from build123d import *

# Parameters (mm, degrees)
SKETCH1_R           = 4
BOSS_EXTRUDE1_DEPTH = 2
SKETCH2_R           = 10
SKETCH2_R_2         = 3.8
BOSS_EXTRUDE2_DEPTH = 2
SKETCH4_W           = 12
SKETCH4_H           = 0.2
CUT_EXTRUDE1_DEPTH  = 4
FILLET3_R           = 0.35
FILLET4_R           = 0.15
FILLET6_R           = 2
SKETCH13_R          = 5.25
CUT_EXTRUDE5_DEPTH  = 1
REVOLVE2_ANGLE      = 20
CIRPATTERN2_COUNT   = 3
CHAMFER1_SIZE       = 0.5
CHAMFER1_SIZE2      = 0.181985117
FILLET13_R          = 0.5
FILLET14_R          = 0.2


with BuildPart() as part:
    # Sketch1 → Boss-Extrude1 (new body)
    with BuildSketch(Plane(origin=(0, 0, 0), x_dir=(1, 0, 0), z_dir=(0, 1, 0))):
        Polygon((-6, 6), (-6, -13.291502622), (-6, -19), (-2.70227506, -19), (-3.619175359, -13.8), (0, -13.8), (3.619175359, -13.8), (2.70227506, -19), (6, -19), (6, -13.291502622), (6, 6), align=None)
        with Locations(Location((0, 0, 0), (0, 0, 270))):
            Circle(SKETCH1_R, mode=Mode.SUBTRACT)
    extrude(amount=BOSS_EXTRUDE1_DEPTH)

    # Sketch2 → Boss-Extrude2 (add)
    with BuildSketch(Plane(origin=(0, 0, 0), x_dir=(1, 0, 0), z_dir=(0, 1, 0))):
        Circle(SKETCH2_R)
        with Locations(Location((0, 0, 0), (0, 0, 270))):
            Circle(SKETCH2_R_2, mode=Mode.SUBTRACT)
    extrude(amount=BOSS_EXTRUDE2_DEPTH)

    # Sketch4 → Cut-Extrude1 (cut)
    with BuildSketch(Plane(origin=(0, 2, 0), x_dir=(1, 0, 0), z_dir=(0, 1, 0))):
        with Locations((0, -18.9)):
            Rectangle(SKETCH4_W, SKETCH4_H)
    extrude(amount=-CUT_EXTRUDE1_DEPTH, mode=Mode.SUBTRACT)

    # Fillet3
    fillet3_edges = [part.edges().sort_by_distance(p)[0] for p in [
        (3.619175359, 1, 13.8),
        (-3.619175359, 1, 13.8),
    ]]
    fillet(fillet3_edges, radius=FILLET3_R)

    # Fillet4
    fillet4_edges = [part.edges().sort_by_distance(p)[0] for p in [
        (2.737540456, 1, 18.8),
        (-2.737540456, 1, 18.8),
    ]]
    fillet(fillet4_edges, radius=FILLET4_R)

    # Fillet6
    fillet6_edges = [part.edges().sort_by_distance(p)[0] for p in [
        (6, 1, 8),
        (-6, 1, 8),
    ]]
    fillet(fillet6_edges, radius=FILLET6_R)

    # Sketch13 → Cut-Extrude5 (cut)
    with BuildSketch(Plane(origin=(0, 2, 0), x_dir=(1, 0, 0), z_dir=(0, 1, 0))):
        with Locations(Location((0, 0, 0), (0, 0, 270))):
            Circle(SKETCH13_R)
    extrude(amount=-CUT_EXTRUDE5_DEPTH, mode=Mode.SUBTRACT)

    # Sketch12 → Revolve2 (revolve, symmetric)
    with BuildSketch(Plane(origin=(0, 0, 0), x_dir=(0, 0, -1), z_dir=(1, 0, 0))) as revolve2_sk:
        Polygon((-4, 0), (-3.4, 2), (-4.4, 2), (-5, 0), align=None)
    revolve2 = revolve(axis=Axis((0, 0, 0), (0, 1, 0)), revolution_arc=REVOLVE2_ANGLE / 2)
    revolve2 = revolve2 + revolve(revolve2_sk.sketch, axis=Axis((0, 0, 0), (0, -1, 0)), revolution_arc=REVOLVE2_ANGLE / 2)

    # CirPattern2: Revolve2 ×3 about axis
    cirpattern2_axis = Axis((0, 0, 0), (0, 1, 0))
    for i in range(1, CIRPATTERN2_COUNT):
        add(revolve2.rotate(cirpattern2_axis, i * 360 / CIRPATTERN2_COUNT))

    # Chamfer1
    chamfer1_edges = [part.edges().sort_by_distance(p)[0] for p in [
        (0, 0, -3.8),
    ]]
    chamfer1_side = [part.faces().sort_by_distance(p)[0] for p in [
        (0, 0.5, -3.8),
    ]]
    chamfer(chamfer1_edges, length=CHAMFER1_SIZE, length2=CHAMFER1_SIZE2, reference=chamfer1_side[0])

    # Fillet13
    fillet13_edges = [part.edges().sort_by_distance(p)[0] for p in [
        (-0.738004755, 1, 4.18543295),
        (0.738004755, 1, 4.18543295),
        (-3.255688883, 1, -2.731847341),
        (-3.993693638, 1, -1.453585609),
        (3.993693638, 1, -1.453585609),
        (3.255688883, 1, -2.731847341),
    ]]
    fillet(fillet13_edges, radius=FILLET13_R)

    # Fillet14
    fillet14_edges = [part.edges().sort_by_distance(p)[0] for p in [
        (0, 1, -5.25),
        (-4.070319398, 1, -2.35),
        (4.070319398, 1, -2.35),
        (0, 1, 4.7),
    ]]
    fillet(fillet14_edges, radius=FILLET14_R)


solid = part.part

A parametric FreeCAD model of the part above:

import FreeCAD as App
import Part
import Sketcher

V = App.Vector
Q = App.Units.Quantity


def edges_at(feature, points):
    """Names of the edges that pass closest to the given points."""
    edges = feature.Shape.Edges
    near = lambda p: min(range(len(edges)), key=lambda i: edges[i].distToShape(Part.Vertex(*p))[0])
    return sorted({f"Edge{near(p) + 1}" for p in points})


def add_polygon(sketch, points):
    """Adds a closed chain of lines whose ends are joined by coincident constraints."""
    first, n = sketch.GeometryCount, len(points)
    for a, b in zip(points, points[1:] + points[:1]):
        sketch.addGeometry(Part.LineSegment(App.Vector(*a, 0), App.Vector(*b, 0)), False)
    for i in range(n):
        sketch.addConstraint(Sketcher.Constraint("Coincident", first + i, 2, first + (i + 1) % n, 1))

doc = App.newDocument("Part")
body = doc.addObject("PartDesign::Body", "Body")

# Sketch on XZ plane
sketch1 = doc.addObject("Sketcher::SketchObject", "Sketch")
body.addObject(sketch1)
sketch1.AttachmentSupport = (doc.XZ_Plane, [""])
sketch1.MapMode = "FlatFace"
add_polygon(sketch1, [(-6, -6), (-6, 19), (-2.7, 19), (-3.6, 13.8), (3.6, 13.8), (2.7, 19), (6, 19), (6, -6)])  # lines 0-7
sketch1.addGeometry(Part.Circle(V(0, 0, 0), V(0, 0, 1), 4), False)  # 8
sketch1.addConstraint(Sketcher.Constraint("Vertical", 0))
sketch1.addConstraint(Sketcher.Constraint("Horizontal", 1))
sketch1.addConstraint(Sketcher.Constraint("Horizontal", 3))
sketch1.addConstraint(Sketcher.Constraint("Horizontal", 5))
sketch1.addConstraint(Sketcher.Constraint("Vertical", 6))
sketch1.addConstraint(Sketcher.Constraint("Horizontal", 7))
sketch1.addConstraint(Sketcher.Constraint("Coincident", 8, 3, -1, 1))
sketch1.addConstraint(Sketcher.Constraint("Symmetric", 1, 2, 4, 2, -2))
sketch1.addConstraint(Sketcher.Constraint("Equal", 1, 5))
sketch1.addConstraint(Sketcher.Constraint("Equal", 2, 4))
sketch1.addConstraint(Sketcher.Constraint("Diameter", 8, Q("8 mm")))
sketch1.addConstraint(Sketcher.Constraint("DistanceX", 7, 2, 7, 1, Q("12 mm")))
sketch1.addConstraint(Sketcher.Constraint("DistanceY", 0, 1, 0, 2, Q("25 mm")))
sketch1.addConstraint(Sketcher.Constraint("Angle", 2, Q("-100 deg")))
sketch1.addConstraint(Sketcher.Constraint("DistanceY", -1, 1, 0, 2, Q("19 mm")))
sketch1.addConstraint(Sketcher.Constraint("DistanceY", -1, 1, 2, 2, Q("13.8 mm")))
sketch1.addConstraint(Sketcher.Constraint("DistanceX", 3, 1, 3, 2, Q("7.238351 mm")))
pad1 = doc.addObject("PartDesign::Pad", "Pad")
body.addObject(pad1)
pad1.Profile = sketch1
pad1.Length = 2
pad1.Reversed = True

# Sketch on XZ plane
sketch2 = doc.addObject("Sketcher::SketchObject", "Sketch001")
body.addObject(sketch2)
sketch2.AttachmentSupport = (doc.XZ_Plane, [""])
sketch2.MapMode = "FlatFace"
sketch2.addGeometry(Part.Circle(V(0, 0, 0), V(0, 0, 1), 10), False)
sketch2.addGeometry(Part.Circle(V(0, 0, 0), V(0, 0, 1), 3.8), False)
sketch2.addConstraint(Sketcher.Constraint("Coincident", 0, 3, -1, 1))
sketch2.addConstraint(Sketcher.Constraint("Coincident", 1, 3, -1, 1))
sketch2.addConstraint(Sketcher.Constraint("Diameter", 0, Q("20 mm")))
sketch2.addConstraint(Sketcher.Constraint("Diameter", 1, Q("7.6 mm")))
pad2 = doc.addObject("PartDesign::Pad", "Pad001")
body.addObject(pad2)
pad2.Profile = sketch2
pad2.Length = 2
pad2.Reversed = True

# Sketch on XZ plane
sketch3 = doc.addObject("Sketcher::SketchObject", "Sketch002")
body.addObject(sketch3)
sketch3.AttachmentSupport = (doc.XZ_Plane, [""])
sketch3.MapMode = "FlatFace"
sketch3.AttachmentOffset = App.Placement(V(0, 0, -2), App.Rotation())
add_polygon(sketch3, [(-6, 18.8), (-6, 19), (6, 19), (6, 18.8)])  # lines 0-3
sketch3.addConstraint(Sketcher.Constraint("Vertical", 0))
sketch3.addConstraint(Sketcher.Constraint("Horizontal", 1))
sketch3.addConstraint(Sketcher.Constraint("Vertical", 2))
sketch3.addConstraint(Sketcher.Constraint("Horizontal", 3))
sketch3.addConstraint(Sketcher.Constraint("DistanceX", 1, 1, 1, 2, Q("12 mm")))
sketch3.addConstraint(Sketcher.Constraint("DistanceY", 0, 1, 0, 2, Q("0.2 mm")))
sketch3.addConstraint(Sketcher.Constraint("DistanceX", 0, 2, -1, 1, Q("6 mm")))
sketch3.addConstraint(Sketcher.Constraint("DistanceY", -1, 1, 0, 2, Q("19 mm")))
pocket1 = doc.addObject("PartDesign::Pocket", "Pocket")
body.addObject(pocket1)
pocket1.Profile = sketch3
pocket1.Length = 4
pocket1.Reversed = True
doc.recompute()

fillet = doc.addObject("PartDesign::Fillet", "Fillet")
body.addObject(fillet)
fillet.Base = (pocket1, edges_at(pocket1, [(3.619, 1, 13.8), (-3.619, 1, 13.8)]))
fillet.Radius = 0.35
doc.recompute()

fillet2 = doc.addObject("PartDesign::Fillet", "Fillet001")
body.addObject(fillet2)
fillet2.Base = (fillet, edges_at(fillet, [(2.738, 1, 18.8), (-2.738, 1, 18.8)]))
fillet2.Radius = 0.15
doc.recompute()

fillet3 = doc.addObject("PartDesign::Fillet", "Fillet002")
body.addObject(fillet3)
fillet3.Base = (fillet2, edges_at(fillet2, [(6, 1, 8), (-6, 1, 8)]))
fillet3.Radius = 2

# Sketch on XZ plane
sketch4 = doc.addObject("Sketcher::SketchObject", "Sketch003")
body.addObject(sketch4)
sketch4.AttachmentSupport = (doc.XZ_Plane, [""])
sketch4.MapMode = "FlatFace"
sketch4.AttachmentOffset = App.Placement(V(0, 0, -2), App.Rotation())
sketch4.addGeometry(Part.Circle(V(0, 0, 0), V(0, 0, 1), 5), False)
sketch4.addConstraint(Sketcher.Constraint("Coincident", 0, 3, -1, 1))
sketch4.addConstraint(Sketcher.Constraint("Diameter", 0, Q("10.5 mm")))
pocket2 = doc.addObject("PartDesign::Pocket", "Pocket001")
body.addObject(pocket2)
pocket2.Profile = sketch4
pocket2.Length = 1
pocket2.Reversed = True

# Sketch on YZ plane
sketch5 = doc.addObject("Sketcher::SketchObject", "Sketch004")
body.addObject(sketch5)
sketch5.AttachmentSupport = (doc.YZ_Plane, [""])
sketch5.MapMode = "FlatFace"
add_polygon(sketch5, [(0, 4), (2, 3.4), (2, 4.4), (0, 5)])  # lines 0-3
sketch5.addConstraint(Sketcher.Constraint("Vertical", 1))
sketch5.addConstraint(Sketcher.Constraint("Vertical", 3))
sketch5.addConstraint(Sketcher.Constraint("PointOnObject", 2, 2, -2))
sketch5.addConstraint(Sketcher.Constraint("Parallel", 0, 2))
sketch5.addConstraint(Sketcher.Constraint("DistanceY", 1, 1, 1, 2, Q("1 mm")))
sketch5.addConstraint(Sketcher.Constraint("DistanceX", -1, 1, 0, 2, Q("2 mm")))
sketch5.addConstraint(Sketcher.Constraint("DistanceY", -1, 1, 2, 2, Q("5 mm")))
sketch5.addConstraint(Sketcher.Constraint("DistanceY", -1, 1, 0, 2, Q("3.4 mm")))
revolution = doc.addObject("PartDesign::Revolution", "Revolution")
body.addObject(revolution)
revolution.Profile = sketch5
revolution.ReferenceAxis = (sketch5, ["H_Axis"])
revolution.Angle = 10

# Sketch on YZ plane
sketch6 = doc.addObject("Sketcher::SketchObject", "Sketch005")
body.addObject(sketch6)
sketch6.AttachmentSupport = (doc.YZ_Plane, [""])
sketch6.MapMode = "FlatFace"
add_polygon(sketch6, [(0, 4), (2, 3.4), (2, 4.4), (0, 5)])  # lines 0-3
sketch6.addConstraint(Sketcher.Constraint("Vertical", 1))
sketch6.addConstraint(Sketcher.Constraint("Vertical", 3))
sketch6.addConstraint(Sketcher.Constraint("PointOnObject", 2, 2, -2))
sketch6.addConstraint(Sketcher.Constraint("Parallel", 0, 2))
sketch6.addConstraint(Sketcher.Constraint("DistanceY", 1, 1, 1, 2, Q("1 mm")))
sketch6.addConstraint(Sketcher.Constraint("DistanceX", -1, 1, 0, 2, Q("2 mm")))
sketch6.addConstraint(Sketcher.Constraint("DistanceY", -1, 1, 2, 2, Q("5 mm")))
sketch6.addConstraint(Sketcher.Constraint("DistanceY", -1, 1, 0, 2, Q("3.4 mm")))
revolution2 = doc.addObject("PartDesign::Revolution", "Revolution001")
body.addObject(revolution2)
revolution2.Profile = sketch6
revolution2.ReferenceAxis = (sketch6, ["H_Axis"])
revolution2.Angle = 10
revolution2.Reversed = True
doc.recompute()

polarpattern = doc.addObject("PartDesign::PolarPattern", "PolarPattern")
body.addObject(polarpattern)
polarpattern.Originals = [revolution, revolution2]
polarpattern.Axis = (doc.Y_Axis, [""])
polarpattern.Angle = 360
polarpattern.Occurrences = 3
body.Tip = polarpattern
doc.recompute()

chamfer = doc.addObject("PartDesign::Chamfer", "Chamfer")
body.addObject(chamfer)
chamfer.Base = (polarpattern, edges_at(polarpattern, [(0, 0, -3.8)]))
chamfer.ChamferType = "Two distances"
chamfer.Size = 0.5
chamfer.Size2 = 0.181985
doc.recompute()

fillet4 = doc.addObject("PartDesign::Fillet", "Fillet003")
body.addObject(fillet4)
fillet4.Base = (chamfer, edges_at(chamfer, [
    (-0.738, 1, 4.185),
    (0.738, 1, 4.185),
    (-3.256, 1, -2.732),
    (-3.994, 1, -1.454),
    (3.994, 1, -1.454),
    (3.256, 1, -2.732),
]))
fillet4.Radius = 0.5
doc.recompute()

fillet5 = doc.addObject("PartDesign::Fillet", "Fillet004")
body.addObject(fillet5)
fillet5.Base = (fillet4, edges_at(fillet4, [
    (0, 1, -5.25),
    (-4.07, 1, -2.35),
    (4.07, 1, -2.35),
    (0, 1, 4.7),
]))
fillet5.Radius = 0.2

doc.recompute()
